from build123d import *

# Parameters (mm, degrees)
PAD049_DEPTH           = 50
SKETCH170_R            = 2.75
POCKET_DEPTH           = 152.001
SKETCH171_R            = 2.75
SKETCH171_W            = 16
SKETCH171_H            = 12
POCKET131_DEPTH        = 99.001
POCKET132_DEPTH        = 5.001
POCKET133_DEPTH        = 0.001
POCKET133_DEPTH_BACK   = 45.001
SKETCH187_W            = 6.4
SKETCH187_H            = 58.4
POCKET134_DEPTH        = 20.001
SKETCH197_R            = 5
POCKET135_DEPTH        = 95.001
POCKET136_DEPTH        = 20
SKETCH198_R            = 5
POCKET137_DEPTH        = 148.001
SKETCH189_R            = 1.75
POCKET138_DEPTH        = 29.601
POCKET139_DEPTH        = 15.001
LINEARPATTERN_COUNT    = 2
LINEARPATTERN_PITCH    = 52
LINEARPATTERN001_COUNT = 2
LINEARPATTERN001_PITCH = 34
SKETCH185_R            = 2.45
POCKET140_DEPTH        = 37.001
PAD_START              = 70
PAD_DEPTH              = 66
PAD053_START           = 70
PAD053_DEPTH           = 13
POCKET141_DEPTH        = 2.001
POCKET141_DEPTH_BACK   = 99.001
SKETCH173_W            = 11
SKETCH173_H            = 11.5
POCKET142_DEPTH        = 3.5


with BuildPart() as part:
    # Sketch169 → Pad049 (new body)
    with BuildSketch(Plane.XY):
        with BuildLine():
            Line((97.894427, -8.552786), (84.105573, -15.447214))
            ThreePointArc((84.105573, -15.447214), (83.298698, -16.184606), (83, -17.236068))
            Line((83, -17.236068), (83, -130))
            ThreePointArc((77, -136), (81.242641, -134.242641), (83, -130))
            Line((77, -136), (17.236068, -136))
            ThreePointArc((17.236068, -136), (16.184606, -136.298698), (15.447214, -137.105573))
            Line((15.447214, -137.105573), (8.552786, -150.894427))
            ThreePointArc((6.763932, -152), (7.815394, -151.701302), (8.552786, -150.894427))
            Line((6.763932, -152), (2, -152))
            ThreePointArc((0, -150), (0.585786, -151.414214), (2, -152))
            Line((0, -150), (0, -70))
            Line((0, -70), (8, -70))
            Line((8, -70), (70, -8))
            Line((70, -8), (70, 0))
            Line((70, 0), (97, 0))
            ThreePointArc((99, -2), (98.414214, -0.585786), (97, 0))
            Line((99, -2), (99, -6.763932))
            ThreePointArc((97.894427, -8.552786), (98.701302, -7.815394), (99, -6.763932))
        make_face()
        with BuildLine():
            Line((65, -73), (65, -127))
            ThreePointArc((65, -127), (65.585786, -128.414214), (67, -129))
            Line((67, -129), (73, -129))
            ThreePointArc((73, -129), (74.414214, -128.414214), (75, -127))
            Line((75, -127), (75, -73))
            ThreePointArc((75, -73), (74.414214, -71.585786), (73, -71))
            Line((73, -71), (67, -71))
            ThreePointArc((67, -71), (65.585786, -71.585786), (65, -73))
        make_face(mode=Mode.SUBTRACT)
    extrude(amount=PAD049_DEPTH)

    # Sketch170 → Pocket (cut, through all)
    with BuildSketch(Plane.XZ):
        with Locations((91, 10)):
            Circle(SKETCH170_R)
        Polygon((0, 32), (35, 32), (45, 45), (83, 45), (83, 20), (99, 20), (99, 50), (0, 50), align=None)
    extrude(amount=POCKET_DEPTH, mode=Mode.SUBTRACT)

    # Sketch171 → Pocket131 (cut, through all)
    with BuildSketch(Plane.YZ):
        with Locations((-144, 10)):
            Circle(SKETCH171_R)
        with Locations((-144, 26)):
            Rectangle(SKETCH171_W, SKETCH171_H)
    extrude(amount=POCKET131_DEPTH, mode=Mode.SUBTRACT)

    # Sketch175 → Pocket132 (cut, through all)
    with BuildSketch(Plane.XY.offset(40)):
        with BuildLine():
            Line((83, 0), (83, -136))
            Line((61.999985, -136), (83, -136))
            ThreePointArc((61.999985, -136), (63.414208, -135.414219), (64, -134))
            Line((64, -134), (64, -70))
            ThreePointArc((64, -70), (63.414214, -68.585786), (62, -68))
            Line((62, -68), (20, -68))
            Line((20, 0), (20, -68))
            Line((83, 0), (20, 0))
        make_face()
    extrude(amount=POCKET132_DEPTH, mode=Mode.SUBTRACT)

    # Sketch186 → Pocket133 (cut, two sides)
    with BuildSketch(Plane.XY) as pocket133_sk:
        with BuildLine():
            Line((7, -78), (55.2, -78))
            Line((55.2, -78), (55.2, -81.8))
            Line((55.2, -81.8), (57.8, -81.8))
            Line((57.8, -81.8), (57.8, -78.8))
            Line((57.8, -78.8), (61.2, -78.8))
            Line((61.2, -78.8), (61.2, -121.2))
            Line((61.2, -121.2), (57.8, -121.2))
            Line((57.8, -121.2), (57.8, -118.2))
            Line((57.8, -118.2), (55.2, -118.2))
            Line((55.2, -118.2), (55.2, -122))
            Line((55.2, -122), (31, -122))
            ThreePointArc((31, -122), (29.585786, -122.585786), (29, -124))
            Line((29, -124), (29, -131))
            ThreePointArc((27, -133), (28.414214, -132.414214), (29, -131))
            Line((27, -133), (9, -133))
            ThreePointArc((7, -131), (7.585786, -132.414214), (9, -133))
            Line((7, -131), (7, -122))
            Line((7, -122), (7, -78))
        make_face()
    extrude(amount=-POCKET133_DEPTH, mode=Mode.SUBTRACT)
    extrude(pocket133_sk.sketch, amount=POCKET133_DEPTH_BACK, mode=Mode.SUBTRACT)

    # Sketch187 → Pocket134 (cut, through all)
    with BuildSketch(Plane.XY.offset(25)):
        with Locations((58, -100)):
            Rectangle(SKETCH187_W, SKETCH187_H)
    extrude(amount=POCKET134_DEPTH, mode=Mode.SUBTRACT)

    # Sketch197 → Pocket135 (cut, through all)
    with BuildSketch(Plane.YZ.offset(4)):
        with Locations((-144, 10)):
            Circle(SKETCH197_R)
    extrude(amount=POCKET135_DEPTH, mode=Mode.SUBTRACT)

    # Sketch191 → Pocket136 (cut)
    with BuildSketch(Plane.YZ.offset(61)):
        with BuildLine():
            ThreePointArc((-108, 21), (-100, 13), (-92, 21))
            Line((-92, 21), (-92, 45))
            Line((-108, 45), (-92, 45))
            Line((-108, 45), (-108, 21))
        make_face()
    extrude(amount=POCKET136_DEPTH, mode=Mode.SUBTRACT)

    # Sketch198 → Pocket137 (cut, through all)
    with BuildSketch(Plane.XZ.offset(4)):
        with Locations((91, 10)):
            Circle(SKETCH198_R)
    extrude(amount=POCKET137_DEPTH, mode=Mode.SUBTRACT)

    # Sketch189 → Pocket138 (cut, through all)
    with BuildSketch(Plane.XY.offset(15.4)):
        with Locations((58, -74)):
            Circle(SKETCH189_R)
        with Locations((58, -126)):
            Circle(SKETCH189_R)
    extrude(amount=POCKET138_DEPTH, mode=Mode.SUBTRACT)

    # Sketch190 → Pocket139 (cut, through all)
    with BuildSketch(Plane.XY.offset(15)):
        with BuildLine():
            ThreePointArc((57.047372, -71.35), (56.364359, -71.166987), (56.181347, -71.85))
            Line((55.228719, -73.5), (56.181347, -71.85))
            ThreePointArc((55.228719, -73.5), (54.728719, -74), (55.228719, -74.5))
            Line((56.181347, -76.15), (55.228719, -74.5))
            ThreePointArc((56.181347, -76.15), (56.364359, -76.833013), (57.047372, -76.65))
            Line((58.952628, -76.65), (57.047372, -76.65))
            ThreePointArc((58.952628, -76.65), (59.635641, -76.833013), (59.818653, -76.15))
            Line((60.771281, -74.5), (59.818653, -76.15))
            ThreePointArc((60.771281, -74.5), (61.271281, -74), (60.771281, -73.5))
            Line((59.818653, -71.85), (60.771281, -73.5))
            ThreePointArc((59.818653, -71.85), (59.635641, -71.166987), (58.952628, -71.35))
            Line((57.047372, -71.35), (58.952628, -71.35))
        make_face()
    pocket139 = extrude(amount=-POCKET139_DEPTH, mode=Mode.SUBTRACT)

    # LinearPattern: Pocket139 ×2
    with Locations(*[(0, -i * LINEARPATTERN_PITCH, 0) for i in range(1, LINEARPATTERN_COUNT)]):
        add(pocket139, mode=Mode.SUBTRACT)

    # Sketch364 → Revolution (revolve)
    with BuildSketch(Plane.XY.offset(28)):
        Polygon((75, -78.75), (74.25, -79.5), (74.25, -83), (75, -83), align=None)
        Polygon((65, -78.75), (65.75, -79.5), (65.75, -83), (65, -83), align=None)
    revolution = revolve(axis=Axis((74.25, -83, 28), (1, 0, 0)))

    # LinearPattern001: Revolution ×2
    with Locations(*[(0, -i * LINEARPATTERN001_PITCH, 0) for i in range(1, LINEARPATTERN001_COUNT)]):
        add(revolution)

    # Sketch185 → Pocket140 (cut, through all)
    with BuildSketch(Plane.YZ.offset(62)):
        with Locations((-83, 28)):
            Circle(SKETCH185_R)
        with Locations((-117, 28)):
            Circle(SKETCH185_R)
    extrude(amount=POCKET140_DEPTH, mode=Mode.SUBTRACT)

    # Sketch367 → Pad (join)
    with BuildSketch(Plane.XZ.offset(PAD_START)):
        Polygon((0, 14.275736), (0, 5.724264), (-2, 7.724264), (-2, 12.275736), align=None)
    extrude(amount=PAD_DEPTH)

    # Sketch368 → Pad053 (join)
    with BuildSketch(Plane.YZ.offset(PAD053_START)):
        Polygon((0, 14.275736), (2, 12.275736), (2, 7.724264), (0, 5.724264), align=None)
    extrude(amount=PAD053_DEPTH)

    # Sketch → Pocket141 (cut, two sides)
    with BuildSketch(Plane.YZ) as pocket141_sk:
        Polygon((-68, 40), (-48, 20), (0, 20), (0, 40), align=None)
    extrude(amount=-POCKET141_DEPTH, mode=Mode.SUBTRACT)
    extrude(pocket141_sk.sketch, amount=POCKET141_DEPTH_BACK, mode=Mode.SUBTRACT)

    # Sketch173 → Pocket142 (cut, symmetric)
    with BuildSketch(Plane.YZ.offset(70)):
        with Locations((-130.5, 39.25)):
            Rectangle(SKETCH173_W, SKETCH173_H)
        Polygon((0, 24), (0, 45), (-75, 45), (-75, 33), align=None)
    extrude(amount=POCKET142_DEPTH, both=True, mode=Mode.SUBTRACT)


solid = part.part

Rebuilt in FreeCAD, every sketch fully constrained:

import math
import FreeCAD as App
import Part
import Sketcher
from FreeCAD import Vector
Q = App.Units.Quantity


def add_polygon(sketch, points):
    """Adds a closed chain of lines whose ends are joined by coincident constraints."""
    first, n = sketch.GeometryCount, len(points)
    for a, b in zip(points, points[1:] + points[:1]):
        sketch.addGeometry(Part.LineSegment(App.Vector(*a, 0), App.Vector(*b, 0)), False)
    for i in range(n):
        sketch.addConstraint(Sketcher.Constraint("Coincident", first + i, 2, first + (i + 1) % n, 1))

doc = App.newDocument("Part")
body = doc.addObject("PartDesign::Body", "Body")

# Sketch on XY plane
sketch1 = body.newObject("Sketcher::SketchObject", "Sketch")
sketch1.AttachmentSupport = (doc.getObject("XY_Plane"), [""])
sketch1.MapMode = "FlatFace"
sketch1.addGeometry(Part.LineSegment(Vector(84.105573, -15.447214, 0), Vector(97.894427, -8.552786, 0)), False)
sketch1.addGeometry(Part.ArcOfCircle(Part.Circle(Vector(97.000003, -6.763933, 0), Vector(0, 0, 1), 1.999997), math.radians(-63.435001), math.radians(0.000033)), False)
sketch1.addGeometry(Part.LineSegment(Vector(99, -6.763932, 0), Vector(99, -2, 0)), False)
sketch1.addGeometry(Part.ArcOfCircle(Part.Circle(Vector(97.000001, -1.999999, 0), Vector(0, 0, 1), 1.999999), math.radians(-0.000043), math.radians(90.000043)), False)
sketch1.addGeometry(Part.LineSegment(Vector(97, 0, 0), Vector(70, 0, 0)), False)
sketch1.addGeometry(Part.LineSegment(Vector(70, 0, 0), Vector(70, -8, 0)), False)
sketch1.addGeometry(Part.LineSegment(Vector(70, -8, 0), Vector(8, -70, 0)), False)
sketch1.addGeometry(Part.LineSegment(Vector(8, -70, 0), Vector(0, -70, 0)), False)
sketch1.addGeometry(Part.LineSegment(Vector(0, -70, 0), Vector(0, -150, 0)), False)
sketch1.addGeometry(Part.ArcOfCircle(Part.Circle(Vector(1.999999, -150.000001, 0), Vector(0, 0, 1), 1.999999), math.radians(179.999957), math.radians(270.000043)), False)
sketch1.addGeometry(Part.LineSegment(Vector(2, -152, 0), Vector(6.763932, -152, 0)), False)
sketch1.addGeometry(Part.ArcOfCircle(Part.Circle(Vector(6.763933, -150.000003, 0), Vector(0, 0, 1), 1.999997), math.radians(-90.000033), math.radians(-26.564999)), False)
sketch1.addGeometry(Part.LineSegment(Vector(8.552786, -150.894427, 0), Vector(15.447214, -137.105573, 0)), False)
sketch1.addGeometry(Part.ArcOfCircle(Part.Circle(Vector(17.236067, -137.999997, 0), Vector(0, 0, 1), 1.999997), math.radians(89.999967), math.radians(153.435001)), False)
sketch1.addGeometry(Part.LineSegment(Vector(17.236068, -136, 0), Vector(77, -136, 0)), False)
sketch1.addGeometry(Part.ArcOfCircle(Part.Circle(Vector(77.000001, -130.000001, 0), Vector(0, 0, 1), 5.999999), math.radians(-90.00001), math.radians(0.00001)), False)
sketch1.addGeometry(Part.LineSegment(Vector(83, -130, 0), Vector(83, -17.236068, 0)), False)
sketch1.addGeometry(Part.ArcOfCircle(Part.Circle(Vector(84.999997, -17.236067, 0), Vector(0, 0, 1), 1.999997), math.radians(116.564999), math.radians(180.000033)), False)
sketch1.addGeometry(Part.ArcOfCircle(Part.Circle(Vector(66.999999, -72.999999, 0), Vector(0, 0, 1), 1.999999), math.radians(89.999957), math.radians(180.000043)), False)
sketch1.addGeometry(Part.LineSegment(Vector(67, -71, 0), Vector(73, -71, 0)), False)
sketch1.addGeometry(Part.ArcOfCircle(Part.Circle(Vector(73.000001, -72.999999, 0), Vector(0, 0, 1), 1.999999), math.radians(-0.000043), math.radians(90.000043)), False)
sketch1.addGeometry(Part.LineSegment(Vector(75, -73, 0), Vector(75, -127, 0)), False)
sketch1.addGeometry(Part.ArcOfCircle(Part.Circle(Vector(73.000001, -127.000001, 0), Vector(0, 0, 1), 1.999999), math.radians(-90.000043), math.radians(0.000043)), False)
sketch1.addGeometry(Part.LineSegment(Vector(73, -129, 0), Vector(67, -129, 0)), False)
sketch1.addGeometry(Part.ArcOfCircle(Part.Circle(Vector(66.999999, -127.000001, 0), Vector(0, 0, 1), 1.999999), math.radians(179.999957), math.radians(270.000043)), False)
sketch1.addGeometry(Part.LineSegment(Vector(65, -127, 0), Vector(65, -73, 0)), False)
sketch1.addConstraint(Sketcher.Constraint("Tangent", 0, 2, 1, 1))
sketch1.addConstraint(Sketcher.Constraint("Tangent", 1, 2, 2, 1))
sketch1.addConstraint(Sketcher.Constraint("Tangent", 2, 2, 3, 1))
sketch1.addConstraint(Sketcher.Constraint("Tangent", 3, 2, 4, 1))
sketch1.addConstraint(Sketcher.Constraint("Coincident", 4, 2, 5, 1))
sketch1.addConstraint(Sketcher.Constraint("Coincident", 5, 2, 6, 1))
sketch1.addConstraint(Sketcher.Constraint("Coincident", 6, 2, 7, 1))
sketch1.addConstraint(Sketcher.Constraint("Coincident", 7, 2, 8, 1))
sketch1.addConstraint(Sketcher.Constraint("Tangent", 8, 2, 9, 1))
sketch1.addConstraint(Sketcher.Constraint("Tangent", 9, 2, 10, 1))
sketch1.addConstraint(Sketcher.Constraint("Tangent", 10, 2, 11, 1))
sketch1.addConstraint(Sketcher.Constraint("Tangent", 11, 2, 12, 1))
sketch1.addConstraint(Sketcher.Constraint("Tangent", 12, 2, 13, 2))
sketch1.addConstraint(Sketcher.Constraint("Tangent", 13, 1, 14, 1))
sketch1.addConstraint(Sketcher.Constraint("Tangent", 14, 2, 15, 1))
sketch1.addConstraint(Sketcher.Constraint("Tangent", 15, 2, 16, 1))
sketch1.addConstraint(Sketcher.Constraint("Tangent", 16, 2, 17, 2))
sketch1.addConstraint(Sketcher.Constraint("Tangent", 17, 1, 0, 1))
sketch1.addConstraint(Sketcher.Constraint("Tangent", 18, 1, 19, 1))
sketch1.addConstraint(Sketcher.Constraint("Tangent", 19, 2, 20, 2))
sketch1.addConstraint(Sketcher.Constraint("Tangent", 20, 1, 21, 1))
sketch1.addConstraint(Sketcher.Constraint("Tangent", 21, 2, 22, 2))
sketch1.addConstraint(Sketcher.Constraint("Tangent", 22, 1, 23, 1))
sketch1.addConstraint(Sketcher.Constraint("Tangent", 23, 2, 24, 2))
sketch1.addConstraint(Sketcher.Constraint("Tangent", 24, 1, 25, 1))
sketch1.addConstraint(Sketcher.Constraint("Tangent", 25, 2, 18, 2))
sketch1.addConstraint(Sketcher.Constraint("Vertical", 2))
sketch1.addConstraint(Sketcher.Constraint("Horizontal", 4))
sketch1.addConstraint(Sketcher.Constraint("Vertical", 5))
sketch1.addConstraint(Sketcher.Constraint("Horizontal", 7))
sketch1.addConstraint(Sketcher.Constraint("Vertical", 8))
sketch1.addConstraint(Sketcher.Constraint("Horizontal", 10))
sketch1.addConstraint(Sketcher.Constraint("Horizontal", 14))
sketch1.addConstraint(Sketcher.Constraint("Vertical", 16))
sketch1.addConstraint(Sketcher.Constraint("Horizontal", 19))
sketch1.addConstraint(Sketcher.Constraint("Vertical", 21))
sketch1.addConstraint(Sketcher.Constraint("Horizontal", 23))
sketch1.addConstraint(Sketcher.Constraint("Vertical", 25))
sketch1.addConstraint(Sketcher.Constraint("Equal", 1, 3))
sketch1.addConstraint(Sketcher.Constraint("Equal", 3, 9))
sketch1.addConstraint(Sketcher.Constraint("Equal", 9, 11))
sketch1.addConstraint(Sketcher.Constraint("Equal", 11, 13))
sketch1.addConstraint(Sketcher.Constraint("Equal", 13, 17))
sketch1.addConstraint(Sketcher.Constraint("Equal", 17, 18))
sketch1.addConstraint(Sketcher.Constraint("Equal", 18, 20))
sketch1.addConstraint(Sketcher.Constraint("Equal", 20, 22))
sketch1.addConstraint(Sketcher.Constraint("Equal", 22, 24))
sketch1.addConstraint(Sketcher.Constraint("PointOnObject", 3, 2, -1))
sketch1.addConstraint(Sketcher.Constraint("PointOnObject", 7, 2, -2))
sketch1.addConstraint(Sketcher.Constraint("Equal", 10, 2))
sketch1.addConstraint(Sketcher.Constraint("Equal", 7, 5))
sketch1.addConstraint(Sketcher.Constraint("Equal", 0, 12))
sketch1.addConstraint(Sketcher.Constraint("Radius", 3, 1.999999))
sketch1.addConstraint(Sketcher.Constraint("Radius", 15, 5.999999))
sketch1.addConstraint(Sketcher.Constraint("DistanceX", 4, 2, 4, 1, 27.0))
sketch1.addConstraint(Sketcher.Constraint("DistanceX", 7, 2, 7, 1, 8.0))
sketch1.addConstraint(Sketcher.Constraint("DistanceX", 19, 1, 19, 2, 6.0))
sketch1.addConstraint(Sketcher.Constraint("DistanceY", 8, 2, 8, 1, 80.0))
sketch1.addConstraint(Sketcher.Constraint("DistanceY", 21, 2, 21, 1, 54.0))
sketch1.addConstraint(Sketcher.Constraint("Angle", 6, Q("-135 deg")))
sketch1.addConstraint(Sketcher.Constraint("DistanceX", -1, 1, 3, 3, 97.000001))
sketch1.addConstraint(Sketcher.Constraint("DistanceX", -1, 1, 15, 3, 77.000001))
sketch1.addConstraint(Sketcher.Constraint("DistanceY", 15, 3, -1, 1, 130.000001))
sketch1.addConstraint(Sketcher.Constraint("DistanceX", -1, 1, 18, 3, 66.999999))
sketch1.addConstraint(Sketcher.Constraint("DistanceY", 18, 3, -1, 1, 72.999999))
sketch1.addConstraint(Sketcher.Constraint("DistanceX", 10, 1, 10, 2, 4.763932))
sketch1.addConstraint(Sketcher.Constraint("DistanceX", 14, 1, 14, 2, 59.763932))
pad1 = body.newObject("PartDesign::Pad", "Pad")
pad1.Profile = sketch1
pad1.Length = 50

# Sketch on XZ plane
sketch2 = body.newObject("Sketcher::SketchObject", "Sketch001")
sketch2.AttachmentSupport = (doc.getObject("XZ_Plane"), [""])
sketch2.MapMode = "FlatFace"
sketch2.addGeometry(Part.Circle(Vector(91, 10, 0), Vector(0, 0, 1), 2.75), False)  # 0
add_polygon(sketch2, [(0, 32), (35, 32), (45, 45), (83, 45), (83, 20), (99, 20), (99, 50), (0, 50)])  # lines 1-8
sketch2.addConstraint(Sketcher.Constraint("Horizontal", 1))
sketch2.addConstraint(Sketcher.Constraint("Horizontal", 3))
sketch2.addConstraint(Sketcher.Constraint("Vertical", 4))
sketch2.addConstraint(Sketcher.Constraint("Horizontal", 5))
sketch2.addConstraint(Sketcher.Constraint("Vertical", 6))
sketch2.addConstraint(Sketcher.Constraint("Horizontal", 7))
sketch2.addConstraint(Sketcher.Constraint("Vertical", 8))
sketch2.addConstraint(Sketcher.Constraint("PointOnObject", 7, 2, -2))
sketch2.addConstraint(Sketcher.Constraint("Diameter", 0, 5.5))
sketch2.addConstraint(Sketcher.Constraint("DistanceX", 1, 1, 1, 2, 35.0))
sketch2.addConstraint(Sketcher.Constraint("DistanceX", 3, 1, 3, 2, 38.0))
sketch2.addConstraint(Sketcher.Constraint("DistanceX", 5, 1, 5, 2, 16.0))
sketch2.addConstraint(Sketcher.Constraint("DistanceX", 7, 2, 7, 1, 99.0))
sketch2.addConstraint(Sketcher.Constraint("DistanceY", 4, 2, 4, 1, 25.0))
sketch2.addConstraint(Sketcher.Constraint("DistanceY", 6, 1, 6, 2, 30.0))
sketch2.addConstraint(Sketcher.Constraint("DistanceY", 8, 2, 8, 1, 18.0))
sketch2.addConstraint(Sketcher.Constraint("DistanceX", -1, 1, 0, 3, 91.0))
sketch2.addConstraint(Sketcher.Constraint("DistanceY", -1, 1, 0, 3, 10.0))
sketch2.addConstraint(Sketcher.Constraint("DistanceY", -1, 1, 1, 2, 32.0))
pocket1 = body.newObject("PartDesign::Pocket", "Pocket")
pocket1.Profile = sketch2
pocket1.Type = "ThroughAll"
pocket1.Reversed = True

# Sketch on YZ plane
sketch3 = body.newObject("Sketcher::SketchObject", "Sketch002")
sketch3.AttachmentSupport = (doc.getObject("YZ_Plane"), [""])
sketch3.MapMode = "FlatFace"
sketch3.addGeometry(Part.Circle(Vector(-144, 10, 0), Vector(0, 0, 1), 2.75), False)  # 0
add_polygon(sketch3, [(-152, 32), (-152, 20), (-136, 20), (-136, 32)])  # lines 1-4
sketch3.addConstraint(Sketcher.Constraint("Vertical", 1))
sketch3.addConstraint(Sketcher.Constraint("Horizontal", 2))
sketch3.addConstraint(Sketcher.Constraint("Vertical", 3))
sketch3.addConstraint(Sketcher.Constraint("Horizontal", 4))
sketch3.addConstraint(Sketcher.Constraint("Diameter", 0, 5.5))
sketch3.addConstraint(Sketcher.Constraint("DistanceX", 2, 1, 2, 2, 16.0))
sketch3.addConstraint(Sketcher.Constraint("DistanceY", 1, 2, 1, 1, 12.0))
sketch3.addConstraint(Sketcher.Constraint("DistanceX", 0, 3, -1, 1, 144.0))
sketch3.addConstraint(Sketcher.Constraint("DistanceY", -1, 1, 0, 3, 10.0))
sketch3.addConstraint(Sketcher.Constraint("DistanceX", 1, 2, -1, 1, 152.0))
sketch3.addConstraint(Sketcher.Constraint("DistanceY", -1, 1, 1, 2, 20.0))
pocket2 = body.newObject("PartDesign::Pocket", "Pocket001")
pocket2.Profile = sketch3
pocket2.Type = "ThroughAll"
pocket2.Reversed = True

# Sketch on XY plane
sketch4 = body.newObject("Sketcher::SketchObject", "Sketch003")
sketch4.AttachmentSupport = (doc.getObject("XY_Plane"), [""])
sketch4.MapMode = "FlatFace"
sketch4.AttachmentOffset = App.Placement(Vector(0, 0, 40), App.Rotation())
sketch4.addGeometry(Part.LineSegment(Vector(83, -136, 0), Vector(83, 0, 0)), False)
sketch4.addGeometry(Part.LineSegment(Vector(83, 0, 0), Vector(20, 0, 0)), False)
sketch4.addGeometry(Part.LineSegment(Vector(20, 0, 0), Vector(20, -68, 0)), False)
sketch4.addGeometry(Part.LineSegment(Vector(20, -68, 0), Vector(62, -68, 0)), False)
sketch4.addGeometry(Part.ArcOfCircle(Part.Circle(Vector(62.000001, -69.999999, 0), Vector(0, 0, 1), 1.999999), math.radians(-0.000043), math.radians(90.000043)), False)
sketch4.addGeometry(Part.LineSegment(Vector(64, -70, 0), Vector(64, -134, 0)), False)
sketch4.addGeometry(Part.ArcOfCircle(Part.Circle(Vector(62, -134, 0), Vector(0, 0, 1), 2), math.radians(-90.000424), math.radians(-0.000006)), False)
sketch4.addGeometry(Part.LineSegment(Vector(61.999985, -136, 0), Vector(83, -136, 0)), False)
sketch4.addConstraint(Sketcher.Constraint("Coincident", 0, 2, 1, 1))
sketch4.addConstraint(Sketcher.Constraint("Coincident", 1, 2, 2, 1))
sketch4.addConstraint(Sketcher.Constraint("Coincident", 2, 2, 3, 1))
sketch4.addConstraint(Sketcher.Constraint("Tangent", 3, 2, 4, 2))
sketch4.addConstraint(Sketcher.Constraint("Tangent", 4, 1, 5, 1))
sketch4.addConstraint(Sketcher.Constraint("Tangent", 5, 2, 6, 2))
sketch4.addConstraint(Sketcher.Constraint("Coincident", 6, 1, 7, 1))
sketch4.addConstraint(Sketcher.Constraint("Coincident", 7, 2, 0, 1))
sketch4.addConstraint(Sketcher.Constraint("Vertical", 0))
sketch4.addConstraint(Sketcher.Constraint("Horizontal", 1))
sketch4.addConstraint(Sketcher.Constraint("Vertical", 2))
sketch4.addConstraint(Sketcher.Constraint("Horizontal", 3))
sketch4.addConstraint(Sketcher.Constraint("Vertical", 5))
sketch4.addConstraint(Sketcher.Constraint("Horizontal", 7))
sketch4.addConstraint(Sketcher.Constraint("Equal", 4, 6))
sketch4.addConstraint(Sketcher.Constraint("PointOnObject", 0, 2, -1))
sketch4.addConstraint(Sketcher.Constraint("Radius", 4, 1.999999))
sketch4.addConstraint(Sketcher.Constraint("DistanceX", 1, 2, 1, 1, 63.0))
sketch4.addConstraint(Sketcher.Constraint("DistanceX", 3, 1, 3, 2, 42.0))
sketch4.addConstraint(Sketcher.Constraint("DistanceY", 0, 1, 0, 2, 136.0))
sketch4.addConstraint(Sketcher.Constraint("DistanceY", 2, 2, 2, 1, 68.0))
sketch4.addConstraint(Sketcher.Constraint("DistanceX", -1, 1, 4, 3, 62.000001))
sketch4.addConstraint(Sketcher.Constraint("DistanceX", 7, 1, 7, 2, 21.000015))
pocket3 = body.newObject("PartDesign::Pocket", "Pocket002")
pocket3.Profile = sketch4
pocket3.Type = "ThroughAll"
pocket3.Reversed = True

# Sketch on XY plane
sketch5 = body.newObject("Sketcher::SketchObject", "Sketch004")
sketch5.AttachmentSupport = (doc.getObject("XY_Plane"), [""])
sketch5.MapMode = "FlatFace"
sketch5.addGeometry(Part.LineSegment(Vector(55.2, -78, 0), Vector(7, -78, 0)), False)
sketch5.addGeometry(Part.LineSegment(Vector(7, -78, 0), Vector(7, -131, 0)), False)
sketch5.addGeometry(Part.ArcOfCircle(Part.Circle(Vector(8.999999, -131.000001, 0), Vector(0, 0, 1), 1.999999), math.radians(179.999957), math.radians(270.000043)), False)
sketch5.addGeometry(Part.LineSegment(Vector(9, -133, 0), Vector(27, -133, 0)), False)
sketch5.addGeometry(Part.ArcOfCircle(Part.Circle(Vector(27.000001, -131.000001, 0), Vector(0, 0, 1), 1.999999), math.radians(-90.000043), math.radians(0.000043)), False)
sketch5.addGeometry(Part.LineSegment(Vector(29, -131, 0), Vector(29, -124, 0)), False)
sketch5.addGeometry(Part.ArcOfCircle(Part.Circle(Vector(30.999999, -123.999999, 0), Vector(0, 0, 1), 1.999999), math.radians(89.999957), math.radians(180.000043)), False)
sketch5.addGeometry(Part.LineSegment(Vector(31, -122, 0), Vector(55.2, -122, 0)), False)
sketch5.addGeometry(Part.LineSegment(Vector(55.2, -122, 0), Vector(55.2, -118.2, 0)), False)
sketch5.addGeometry(Part.LineSegment(Vector(55.2, -118.2, 0), Vector(57.8, -118.2, 0)), False)
sketch5.addGeometry(Part.LineSegment(Vector(57.8, -118.2, 0), Vector(57.8, -121.2, 0)), False)
sketch5.addGeometry(Part.LineSegment(Vector(57.8, -121.2, 0), Vector(61.2, -121.2, 0)), False)
sketch5.addGeometry(Part.LineSegment(Vector(61.2, -121.2, 0), Vector(61.2, -78.8, 0)), False)
sketch5.addGeometry(Part.LineSegment(Vector(61.2, -78.8, 0), Vector(57.8, -78.8, 0)), False)
sketch5.addGeometry(Part.LineSegment(Vector(57.8, -78.8, 0), Vector(57.8, -81.8, 0)), False)
sketch5.addGeometry(Part.LineSegment(Vector(57.8, -81.8, 0), Vector(55.2, -81.8, 0)), False)
sketch5.addGeometry(Part.LineSegment(Vector(55.2, -81.8, 0), Vector(55.2, -78, 0)), False)
sketch5.addConstraint(Sketcher.Constraint("Coincident", 0, 2, 1, 1))
sketch5.addConstraint(Sketcher.Constraint("Tangent", 1, 2, 2, 1))
sketch5.addConstraint(Sketcher.Constraint("Tangent", 2, 2, 3, 1))
sketch5.addConstraint(Sketcher.Constraint("Tangent", 3, 2, 4, 1))
sketch5.addConstraint(Sketcher.Constraint("Tangent", 4, 2, 5, 1))
sketch5.addConstraint(Sketcher.Constraint("Tangent", 5, 2, 6, 2))
sketch5.addConstraint(Sketcher.Constraint("Tangent", 6, 1, 7, 1))
sketch5.addConstraint(Sketcher.Constraint("Coincident", 7, 2, 8, 1))
sketch5.addConstraint(Sketcher.Constraint("Coincident", 8, 2, 9, 1))
sketch5.addConstraint(Sketcher.Constraint("Coincident", 9, 2, 10, 1))
sketch5.addConstraint(Sketcher.Constraint("Coincident", 10, 2, 11, 1))
sketch5.addConstraint(Sketcher.Constraint("Coincident", 11, 2, 12, 1))
sketch5.addConstraint(Sketcher.Constraint("Coincident", 12, 2, 13, 1))
sketch5.addConstraint(Sketcher.Constraint("Coincident", 13, 2, 14, 1))
sketch5.addConstraint(Sketcher.Constraint("Coincident", 14, 2, 15, 1))
sketch5.addConstraint(Sketcher.Constraint("Coincident", 15, 2, 16, 1))
sketch5.addConstraint(Sketcher.Constraint("Coincident", 16, 2, 0, 1))
sketch5.addConstraint(Sketcher.Constraint("Horizontal", 0))
sketch5.addConstraint(Sketcher.Constraint("Vertical", 1))
sketch5.addConstraint(Sketcher.Constraint("Horizontal", 3))
sketch5.addConstraint(Sketcher.Constraint("Vertical", 5))
sketch5.addConstraint(Sketcher.Constraint("Horizontal", 7))
sketch5.addConstraint(Sketcher.Constraint("Vertical", 8))
sketch5.addConstraint(Sketcher.Constraint("Horizontal", 9))
sketch5.addConstraint(Sketcher.Constraint("Vertical", 10))
sketch5.addConstraint(Sketcher.Constraint("Horizontal", 11))
sketch5.addConstraint(Sketcher.Constraint("Vertical", 12))
sketch5.addConstraint(Sketcher.Constraint("Horizontal", 13))
sketch5.addConstraint(Sketcher.Constraint("Vertical", 14))
sketch5.addConstraint(Sketcher.Constraint("Horizontal", 15))
sketch5.addConstraint(Sketcher.Constraint("Vertical", 16))
sketch5.addConstraint(Sketcher.Constraint("Equal", 2, 4))
sketch5.addConstraint(Sketcher.Constraint("Equal", 4, 6))
sketch5.addConstraint(Sketcher.Constraint("Vertical", 10, 2, 13, 2))
sketch5.addConstraint(Sketcher.Constraint("Vertical", 8, 2, 15, 2))
sketch5.addConstraint(Sketcher.Constraint("Equal", 10, 14))
sketch5.addConstraint(Sketcher.Constraint("Equal", 8, 16))
sketch5.addConstraint(Sketcher.Constraint("Radius", 2, 1.999999))
sketch5.addConstraint(Sketcher.Constraint("DistanceX", 3, 1, 3, 2, 18.0))
sketch5.addConstraint(Sketcher.Constraint("DistanceY", 1, 2, 1, 1, 53.0))
sketch5.addConstraint(Sketcher.Constraint("DistanceY", 5, 1, 5, 2, 7.0))
sketch5.addConstraint(Sketcher.Constraint("DistanceY", 10, 2, 10, 1, 3.0))
sketch5.addConstraint(Sketcher.Constraint("DistanceX", 0, 2, 0, 1, 48.2))
sketch5.addConstraint(Sketcher.Constraint("DistanceX", 9, 1, 9, 2, 2.6))
sketch5.addConstraint(Sketcher.Constraint("DistanceX", 11, 1, 11, 2, 3.4))
sketch5.addConstraint(Sketcher.Constraint("DistanceY", 8, 1, 8, 2, 3.8))
sketch5.addConstraint(Sketcher.Constraint("DistanceX", -1, 1, 2, 3, 8.999999))
sketch5.addConstraint(Sketcher.Constraint("DistanceY", 2, 3, -1, 1, 131.000001))
pocket4 = body.newObject("PartDesign::Pocket", "Pocket003")
pocket4.Profile = sketch5
pocket4.Type = "ThroughAll"
pocket4.Midplane = True

# Sketch on XY plane
sketch6 = body.newObject("Sketcher::SketchObject", "Sketch005")
sketch6.AttachmentSupport = (doc.getObject("XY_Plane"), [""])
sketch6.MapMode = "FlatFace"
sketch6.AttachmentOffset = App.Placement(Vector(0, 0, 25), App.Rotation())
add_polygon(sketch6, [(54.8, -70.8), (54.8, -129.2), (61.2, -129.2), (61.2, -70.8)])  # lines 0-3
sketch6.addConstraint(Sketcher.Constraint("Vertical", 0))
sketch6.addConstraint(Sketcher.Constraint("Horizontal", 1))
sketch6.addConstraint(Sketcher.Constraint("Vertical", 2))
sketch6.addConstraint(Sketcher.Constraint("Horizontal", 3))
sketch6.addConstraint(Sketcher.Constraint("DistanceX", 1, 1, 1, 2, 6.4))
sketch6.addConstraint(Sketcher.Constraint("DistanceY", 0, 2, 0, 1, 58.4))
sketch6.addConstraint(Sketcher.Constraint("DistanceX", -1, 1, 0, 2, 54.8))
sketch6.addConstraint(Sketcher.Constraint("DistanceY", 0, 2, -1, 1, 129.2))
pocket5 = body.newObject("PartDesign::Pocket", "Pocket004")
pocket5.Profile = sketch6
pocket5.Type = "ThroughAll"
pocket5.Reversed = True

# Sketch on YZ plane
sketch7 = body.newObject("Sketcher::SketchObject", "Sketch006")
sketch7.AttachmentSupport = (doc.getObject("YZ_Plane"), [""])
sketch7.MapMode = "FlatFace"
sketch7.AttachmentOffset = App.Placement(Vector(0, 0, 4), App.Rotation())
sketch7.addGeometry(Part.Circle(Vector(-144, 10, 0), Vector(0, 0, 1), 5), False)
sketch7.addConstraint(Sketcher.Constraint("Diameter", 0, 10.0))
sketch7.addConstraint(Sketcher.Constraint("DistanceX", 0, 3, -1, 1, 144.0))
sketch7.addConstraint(Sketcher.Constraint("DistanceY", -1, 1, 0, 3, 10.0))
pocket6 = body.newObject("PartDesign::Pocket", "Pocket005")
pocket6.Profile = sketch7
pocket6.Type = "ThroughAll"
pocket6.Reversed = True

# Sketch on YZ plane
sketch8 = body.newObject("Sketcher::SketchObject", "Sketch007")
sketch8.AttachmentSupport = (doc.getObject("YZ_Plane"), [""])
sketch8.MapMode = "FlatFace"
sketch8.AttachmentOffset = App.Placement(Vector(0, 0, 61), App.Rotation())
sketch8.addGeometry(Part.ArcOfCircle(Part.Circle(Vector(-100, 21, 0), Vector(0, 0, 1), 8), math.radians(180), math.radians(360)), False)
sketch8.addGeometry(Part.LineSegment(Vector(-92, 21, 0), Vector(-92, 45, 0)), False)
sketch8.addGeometry(Part.LineSegment(Vector(-92, 45, 0), Vector(-108, 45, 0)), False)
sketch8.addGeometry(Part.LineSegment(Vector(-108, 45, 0), Vector(-108, 21, 0)), False)
sketch8.addConstraint(Sketcher.Constraint("Tangent", 0, 2, 1, 1))
sketch8.addConstraint(Sketcher.Constraint("Coincident", 1, 2, 2, 1))
sketch8.addConstraint(Sketcher.Constraint("Coincident", 2, 2, 3, 1))
sketch8.addConstraint(Sketcher.Constraint("Tangent", 3, 2, 0, 1))
sketch8.addConstraint(Sketcher.Constraint("Vertical", 1))
sketch8.addConstraint(Sketcher.Constraint("Horizontal", 2))
sketch8.addConstraint(Sketcher.Constraint("Vertical", 3))
sketch8.addConstraint(Sketcher.Constraint("Radius", 0, 8.0))
sketch8.addConstraint(Sketcher.Constraint("DistanceY", 1, 1, 1, 2, 24.0))
sketch8.addConstraint(Sketcher.Constraint("DistanceX", 0, 3, -1, 1, 100.0))
sketch8.addConstraint(Sketcher.Constraint("DistanceY", -1, 1, 0, 3, 21.0))
pocket7 = body.newObject("PartDesign::Pocket", "Pocket006")
pocket7.Profile = sketch8
pocket7.Length = 20
pocket7.Reversed = True

# Sketch on XZ plane
sketch9 = body.newObject("Sketcher::SketchObject", "Sketch008")
sketch9.AttachmentSupport = (doc.getObject("XZ_Plane"), [""])
sketch9.MapMode = "FlatFace"
sketch9.AttachmentOffset = App.Placement(Vector(0, 0, 4), App.Rotation())
sketch9.addGeometry(Part.Circle(Vector(91, 10, 0), Vector(0, 0, 1), 5), False)
sketch9.addConstraint(Sketcher.Constraint("Diameter", 0, 10.0))
sketch9.addConstraint(Sketcher.Constraint("DistanceX", -1, 1, 0, 3, 91.0))
sketch9.addConstraint(Sketcher.Constraint("DistanceY", -1, 1, 0, 3, 10.0))
pocket8 = body.newObject("PartDesign::Pocket", "Pocket007")
pocket8.Profile = sketch9
pocket8.Type = "ThroughAll"
pocket8.Reversed = True

# Sketch on XY plane
sketch10 = body.newObject("Sketcher::SketchObject", "Sketch009")
sketch10.AttachmentSupport = (doc.getObject("XY_Plane"), [""])
sketch10.MapMode = "FlatFace"
sketch10.AttachmentOffset = App.Placement(Vector(0, 0, 15.4), App.Rotation())
sketch10.addGeometry(Part.Circle(Vector(58, -74, 0), Vector(0, 0, 1), 1.75), False)
sketch10.addGeometry(Part.Circle(Vector(58, -126, 0), Vector(0, 0, 1), 1.75), False)
sketch10.addConstraint(Sketcher.Constraint("Equal", 0, 1))
sketch10.addConstraint(Sketcher.Constraint("Vertical", 0, 3, 1, 3))
sketch10.addConstraint(Sketcher.Constraint("Diameter", 0, 3.5))
sketch10.addConstraint(Sketcher.Constraint("DistanceX", -1, 1, 0, 3, 58.0))
sketch10.addConstraint(Sketcher.Constraint("DistanceY", 0, 3, -1, 1, 74.0))
sketch10.addConstraint(Sketcher.Constraint("DistanceY", 1, 3, -1, 1, 126.0))
pocket9 = body.newObject("PartDesign::Pocket", "Pocket008")
pocket9.Profile = sketch10
pocket9.Type = "ThroughAll"
pocket9.Reversed = True

# Sketch on XY plane
sketch11 = body.newObject("Sketcher::SketchObject", "Sketch010")
sketch11.AttachmentSupport = (doc.getObject("XY_Plane"), [""])
sketch11.MapMode = "FlatFace"
sketch11.AttachmentOffset = App.Placement(Vector(0, 0, 15), App.Rotation())
sketch11.addGeometry(Part.ArcOfCircle(Part.Circle(Vector(56.614359, -71.599999, 0), Vector(0, 0, 1), 0.5), math.radians(29.999933), math.radians(210.00009)), False)
sketch11.addGeometry(Part.LineSegment(Vector(56.181347, -71.85, 0), Vector(55.228719, -73.5, 0)), False)
sketch11.addGeometry(Part.ArcOfCircle(Part.Circle(Vector(55.228719, -74, 0), Vector(0, 0, 1), 0.5), math.radians(90), math.radians(270)), False)
sketch11.addGeometry(Part.LineSegment(Vector(55.228719, -74.5, 0), Vector(56.181347, -76.15, 0)), False)
sketch11.addGeometry(Part.ArcOfCircle(Part.Circle(Vector(56.614359, -76.400001, 0), Vector(0, 0, 1), 0.5), math.radians(149.99991), math.radians(330.000067)), False)
sketch11.addGeometry(Part.LineSegment(Vector(57.047372, -76.65, 0), Vector(58.952628, -76.65, 0)), False)
sketch11.addGeometry(Part.ArcOfCircle(Part.Circle(Vector(59.385641, -76.400001, 0), Vector(0, 0, 1), 0.5), math.radians(-150.000067), math.radians(30.00009)), False)
sketch11.addGeometry(Part.LineSegment(Vector(59.818653, -76.15, 0), Vector(60.771281, -74.5, 0)), False)
sketch11.addGeometry(Part.ArcOfCircle(Part.Circle(Vector(60.771281, -74, 0), Vector(0, 0, 1), 0.5), math.radians(-90), math.radians(90)), False)
sketch11.addGeometry(Part.LineSegment(Vector(60.771281, -73.5, 0), Vector(59.818653, -71.85, 0)), False)
sketch11.addGeometry(Part.ArcOfCircle(Part.Circle(Vector(59.385641, -71.599999, 0), Vector(0, 0, 1), 0.5), math.radians(-30.00009), math.radians(150.000067)), False)
sketch11.addGeometry(Part.LineSegment(Vector(58.952628, -71.35, 0), Vector(57.047372, -71.35, 0)), False)
sketch11.addConstraint(Sketcher.Constraint("Coincident", 0, 2, 1, 1))
sketch11.addConstraint(Sketcher.Constraint("Coincident", 1, 2, 2, 1))
sketch11.addConstraint(Sketcher.Constraint("Coincident", 2, 2, 3, 1))
sketch11.addConstraint(Sketcher.Constraint("Coincident", 3, 2, 4, 1))
sketch11.addConstraint(Sketcher.Constraint("Coincident", 4, 2, 5, 1))
sketch11.addConstraint(Sketcher.Constraint("Coincident", 5, 2, 6, 1))
sketch11.addConstraint(Sketcher.Constraint("Coincident", 6, 2, 7, 1))
sketch11.addConstraint(Sketcher.Constraint("Coincident", 7, 2, 8, 1))
sketch11.addConstraint(Sketcher.Constraint("Coincident", 8, 2, 9, 1))
sketch11.addConstraint(Sketcher.Constraint("Coincident", 9, 2, 10, 1))
sketch11.addConstraint(Sketcher.Constraint("Coincident", 10, 2, 11, 1))
sketch11.addConstraint(Sketcher.Constraint("Coincident", 11, 2, 0, 1))
sketch11.addConstraint(Sketcher.Constraint("Horizontal", 5))
sketch11.addConstraint(Sketcher.Constraint("Horizontal", 11))
sketch11.addConstraint(Sketcher.Constraint("Equal", 0, 2))
sketch11.addConstraint(Sketcher.Constraint("Equal", 2, 4))
sketch11.addConstraint(Sketcher.Constraint("Equal", 4, 6))
sketch11.addConstraint(Sketcher.Constraint("Equal", 6, 8))
sketch11.addConstraint(Sketcher.Constraint("Equal", 8, 10))
sketch11.addConstraint(Sketcher.Constraint("Parallel", 1, 7))
sketch11.addConstraint(Sketcher.Constraint("Parallel", 3, 9))
sketch11.addConstraint(Sketcher.Constraint("Horizontal", 4, 3, 6, 3))
sketch11.addConstraint(Sketcher.Constraint("Horizontal", 2, 3, 8, 3))
sketch11.addConstraint(Sketcher.Constraint("Horizontal", 0, 3, 10, 3))
sketch11.addConstraint(Sketcher.Constraint("Horizontal", 3, 2, 6, 2))
sketch11.addConstraint(Sketcher.Constraint("Horizontal", 0, 2, 9, 2))
sketch11.addConstraint(Sketcher.Constraint("Vertical", 0, 3, 4, 3))
sketch11.addConstraint(Sketcher.Constraint("Vertical", 6, 3, 10, 3))
sketch11.addConstraint(Sketcher.Constraint("Vertical", 2, 3, 1, 2))
sketch11.addConstraint(Sketcher.Constraint("Vertical", 1, 2, 2, 2))
sketch11.addConstraint(Sketcher.Constraint("Vertical", 0, 2, 3, 2))
sketch11.addConstraint(Sketcher.Constraint("Vertical", 8, 3, 7, 2))
sketch11.addConstraint(Sketcher.Constraint("Vertical", 7, 2, 8, 2))
sketch11.addConstraint(Sketcher.Constraint("Vertical", 5, 2, 10, 2))
sketch11.addConstraint(Sketcher.Constraint("Radius", 0, 0.5))
sketch11.addConstraint(Sketcher.Constraint("Angle", 1, Q("-120.000001 deg")))
sketch11.addConstraint(Sketcher.Constraint("DistanceY", 2, 3, -1, 1, 74.0))
sketch11.addConstraint(Sketcher.Constraint("DistanceY", 0, 3, -1, 1, 71.599999))
sketch11.addConstraint(Sketcher.Constraint("DistanceY", 4, 2, 3, 2, 0.5))
sketch11.addConstraint(Sketcher.Constraint("DistanceY", 0, 2, -1, 1, 71.85))
sketch11.addConstraint(Sketcher.Constraint("DistanceX", 5, 1, 5, 2, 1.905256))
sketch11.addConstraint(Sketcher.Constraint("DistanceX", -1, 1, 0, 3, 56.614359))
pocket10 = body.newObject("PartDesign::Pocket", "Pocket009")
pocket10.Profile = sketch11
pocket10.Type = "ThroughAll"
doc.recompute()

linearpattern = body.newObject("PartDesign::LinearPattern", "LinearPattern")
linearpattern.Originals = [pocket10]
linearpattern.Direction = (doc.getObject("Y_Axis"), [""])
linearpattern.Mode = "offset"
linearpattern.Offset = 52
linearpattern.Occurrences = 2
linearpattern.Reversed = True
body.Tip = linearpattern

# Sketch on XY plane
sketch12 = body.newObject("Sketcher::SketchObject", "Sketch011")
sketch12.AttachmentSupport = (doc.getObject("XY_Plane"), [""])
sketch12.MapMode = "FlatFace"
sketch12.AttachmentOffset = App.Placement(Vector(0, 0, 28), App.Rotation())
add_polygon(sketch12, [(75, -78.75), (74.25, -79.5), (74.25, -83), (75, -83)])  # lines 0-3
add_polygon(sketch12, [(65.75, -79.5), (65, -78.75), (65, -83), (65.75, -83)])  # lines 4-7
sketch12.addGeometry(Part.LineSegment(Vector(65, -83, 0), Vector(75, -83, 0)), True)  # axis
sketch12.addConstraint(Sketcher.Constraint("Vertical", 1))
sketch12.addConstraint(Sketcher.Constraint("Horizontal", 2))
sketch12.addConstraint(Sketcher.Constraint("Vertical", 3))
sketch12.addConstraint(Sketcher.Constraint("Vertical", 5))
sketch12.addConstraint(Sketcher.Constraint("Horizontal", 6))
sketch12.addConstraint(Sketcher.Constraint("Vertical", 7))
sketch12.addConstraint(Sketcher.Constraint("Horizontal", 8))
sketch12.addConstraint(Sketcher.Constraint("Coincident", 8, 1, 5, 2))
sketch12.addConstraint(Sketcher.Constraint("Coincident", 8, 2, 2, 2))
sketch12.addConstraint(Sketcher.Constraint("Perpendicular", 0, 4))
sketch12.addConstraint(Sketcher.Constraint("Horizontal", 3, 2, 4, 2))
sketch12.addConstraint(Sketcher.Constraint("Horizontal", 0, 2, 7, 2))
sketch12.addConstraint(Sketcher.Constraint("Equal", 2, 6))
sketch12.addConstraint(Sketcher.Constraint("DistanceX", 8, 1, 8, 2, 10.0))
sketch12.addConstraint(Sketcher.Constraint("DistanceY", 1, 2, 1, 1, 3.5))
sketch12.addConstraint(Sketcher.Constraint("DistanceY", 1, 2, -1, 1, 83.0))
sketch12.addConstraint(Sketcher.Constraint("DistanceX", -1, 1, 2, 2, 75.0))
sketch12.addConstraint(Sketcher.Constraint("DistanceX", 2, 1, 2, 2, 0.75))
revolution = body.newObject("PartDesign::Revolution", "Revolution")
revolution.Profile = sketch12
revolution.ReferenceAxis = (sketch12, ["Axis0"])
revolution.Angle = 360
doc.recompute()

linearpattern2 = body.newObject("PartDesign::LinearPattern", "LinearPattern001")
linearpattern2.Originals = [revolution]
linearpattern2.Direction = (doc.getObject("Y_Axis"), [""])
linearpattern2.Mode = "offset"
linearpattern2.Offset = 34
linearpattern2.Occurrences = 2
linearpattern2.Reversed = True
body.Tip = linearpattern2

# Sketch on YZ plane
sketch13 = body.newObject("Sketcher::SketchObject", "Sketch012")
sketch13.AttachmentSupport = (doc.getObject("YZ_Plane"), [""])
sketch13.MapMode = "FlatFace"
sketch13.AttachmentOffset = App.Placement(Vector(0, 0, 62), App.Rotation())
sketch13.addGeometry(Part.Circle(Vector(-83, 28, 0), Vector(0, 0, 1), 2.45), False)
sketch13.addGeometry(Part.Circle(Vector(-117, 28, 0), Vector(0, 0, 1), 2.45), False)
sketch13.addConstraint(Sketcher.Constraint("Equal", 0, 1))
sketch13.addConstraint(Sketcher.Constraint("Horizontal", 0, 3, 1, 3))
sketch13.addConstraint(Sketcher.Constraint("Diameter", 0, 4.9))
sketch13.addConstraint(Sketcher.Constraint("DistanceX", 0, 3, -1, 1, 83.0))
sketch13.addConstraint(Sketcher.Constraint("DistanceY", -1, 1, 0, 3, 28.0))
sketch13.addConstraint(Sketcher.Constraint("DistanceX", 1, 3, -1, 1, 117.0))
pocket11 = body.newObject("PartDesign::Pocket", "Pocket010")
pocket11.Profile = sketch13
pocket11.Type = "ThroughAll"
pocket11.Reversed = True

# Sketch on XZ plane
sketch14 = body.newObject("Sketcher::SketchObject", "Sketch013")
sketch14.AttachmentSupport = (doc.getObject("XZ_Plane"), [""])
sketch14.MapMode = "FlatFace"
sketch14.AttachmentOffset = App.Placement(Vector(0, 0, 70), App.Rotation())
add_polygon(sketch14, [(0, 5.724264), (0, 14.275736), (-2, 12.275736), (-2, 7.724264)])  # lines 0-3
sketch14.addConstraint(Sketcher.Constraint("Vertical", 0))
sketch14.addConstraint(Sketcher.Constraint("Vertical", 2))
sketch14.addConstraint(Sketcher.Constraint("PointOnObject", 0, 2, -2))
sketch14.addConstraint(Sketcher.Constraint("Perpendicular", 1, 3))
sketch14.addConstraint(Sketcher.Constraint("Equal", 1, 3))
sketch14.addConstraint(Sketcher.Constraint("DistanceX", 1, 2, -1, 1, 2.0))
sketch14.addConstraint(Sketcher.Constraint("DistanceY", 0, 1, 0, 2, 8.551472))
sketch14.addConstraint(Sketcher.Constraint("DistanceY", -1, 1, 0, 2, 14.275736))
pad2 = body.newObject("PartDesign::Pad", "Pad001")
pad2.Profile = sketch14
pad2.Length = 66

# Sketch on YZ plane
sketch15 = body.newObject("Sketcher::SketchObject", "Sketch014")
sketch15.AttachmentSupport = (doc.getObject("YZ_Plane"), [""])
sketch15.MapMode = "FlatFace"
sketch15.AttachmentOffset = App.Placement(Vector(0, 0, 70), App.Rotation())
add_polygon(sketch15, [(2, 12.275736), (0, 14.275736), (0, 5.724264), (2, 7.724264)])  # lines 0-3
sketch15.addConstraint(Sketcher.Constraint("Vertical", 1))
sketch15.addConstraint(Sketcher.Constraint("Vertical", 3))
sketch15.addConstraint(Sketcher.Constraint("PointOnObject", 0, 2, -2))
sketch15.addConstraint(Sketcher.Constraint("Perpendicular", 0, 2))
sketch15.addConstraint(Sketcher.Constraint("Equal", 0, 2))
sketch15.addConstraint(Sketcher.Constraint("DistanceX", -1, 1, 2, 2, 2.0))
sketch15.addConstraint(Sketcher.Constraint("DistanceY", 1, 2, 1, 1, 8.551472))
sketch15.addConstraint(Sketcher.Constraint("DistanceY", -1, 1, 0, 2, 14.275736))
pad3 = body.newObject("PartDesign::Pad", "Pad002")
pad3.Profile = sketch15
pad3.Length = 13

# Sketch on YZ plane
sketch16 = body.newObject("Sketcher::SketchObject", "Sketch015")
sketch16.AttachmentSupport = (doc.getObject("YZ_Plane"), [""])
sketch16.MapMode = "FlatFace"
add_polygon(sketch16, [(-68, 40), (-48, 20), (0, 20), (0, 40)])  # lines 0-3
sketch16.addConstraint(Sketcher.Constraint("Horizontal", 1))
sketch16.addConstraint(Sketcher.Constraint("Vertical", 2))
sketch16.addConstraint(Sketcher.Constraint("Horizontal", 3))
sketch16.addConstraint(Sketcher.Constraint("PointOnObject", 1, 2, -2))
sketch16.addConstraint(Sketcher.Constraint("DistanceX", 1, 1, 1, 2, 48.0))
sketch16.addConstraint(Sketcher.Constraint("DistanceX", 3, 2, 3, 1, 68.0))
sketch16.addConstraint(Sketcher.Constraint("DistanceY", 2, 1, 2, 2, 20.0))
sketch16.addConstraint(Sketcher.Constraint("DistanceY", -1, 1, 0, 2, 20.0))
pocket12 = body.newObject("PartDesign::Pocket", "Pocket011")
pocket12.Profile = sketch16
pocket12.Type = "ThroughAll"
pocket12.Midplane = True

# Sketch on YZ plane
sketch17 = body.newObject("Sketcher::SketchObject", "Sketch016")
sketch17.AttachmentSupport = (doc.getObject("YZ_Plane"), [""])
sketch17.MapMode = "FlatFace"
sketch17.AttachmentOffset = App.Placement(Vector(0, 0, 70), App.Rotation())
add_polygon(sketch17, [(-136, 45), (-136, 33.5), (-125, 33.5), (-125, 45)])  # lines 0-3
add_polygon(sketch17, [(0, 24), (0, 45), (-75, 45), (-75, 33)])  # lines 4-7
sketch17.addConstraint(Sketcher.Constraint("Vertical", 0))
sketch17.addConstraint(Sketcher.Constraint("Horizontal", 1))
sketch17.addConstraint(Sketcher.Constraint("Vertical", 2))
sketch17.addConstraint(Sketcher.Constraint("Horizontal", 3))
sketch17.addConstraint(Sketcher.Constraint("Vertical", 4))
sketch17.addConstraint(Sketcher.Constraint("Horizontal", 5))
sketch17.addConstraint(Sketcher.Constraint("Vertical", 6))
sketch17.addConstraint(Sketcher.Constraint("PointOnObject", 4, 2, -2))
sketch17.addConstraint(Sketcher.Constraint("Horizontal", 3, 2, 4, 2))
sketch17.addConstraint(Sketcher.Constraint("DistanceX", 1, 1, 1, 2, 11.0))
sketch17.addConstraint(Sketcher.Constraint("DistanceX", 5, 2, 5, 1, 75.0))
sketch17.addConstraint(Sketcher.Constraint("DistanceY", 4, 1, 4, 2, 21.0))
sketch17.addConstraint(Sketcher.Constraint("DistanceY", 6, 2, 6, 1, 12.0))
sketch17.addConstraint(Sketcher.Constraint("DistanceY", 0, 2, 0, 1, 11.5))
sketch17.addConstraint(Sketcher.Constraint("DistanceX", 0, 2, -1, 1, 136.0))
sketch17.addConstraint(Sketcher.Constraint("DistanceY", -1, 1, 2, 2, 45.0))
pocket13 = body.newObject("PartDesign::Pocket", "Pocket012")
pocket13.Profile = sketch17
pocket13.Length = 7
pocket13.Midplane = True

doc.recompute()
